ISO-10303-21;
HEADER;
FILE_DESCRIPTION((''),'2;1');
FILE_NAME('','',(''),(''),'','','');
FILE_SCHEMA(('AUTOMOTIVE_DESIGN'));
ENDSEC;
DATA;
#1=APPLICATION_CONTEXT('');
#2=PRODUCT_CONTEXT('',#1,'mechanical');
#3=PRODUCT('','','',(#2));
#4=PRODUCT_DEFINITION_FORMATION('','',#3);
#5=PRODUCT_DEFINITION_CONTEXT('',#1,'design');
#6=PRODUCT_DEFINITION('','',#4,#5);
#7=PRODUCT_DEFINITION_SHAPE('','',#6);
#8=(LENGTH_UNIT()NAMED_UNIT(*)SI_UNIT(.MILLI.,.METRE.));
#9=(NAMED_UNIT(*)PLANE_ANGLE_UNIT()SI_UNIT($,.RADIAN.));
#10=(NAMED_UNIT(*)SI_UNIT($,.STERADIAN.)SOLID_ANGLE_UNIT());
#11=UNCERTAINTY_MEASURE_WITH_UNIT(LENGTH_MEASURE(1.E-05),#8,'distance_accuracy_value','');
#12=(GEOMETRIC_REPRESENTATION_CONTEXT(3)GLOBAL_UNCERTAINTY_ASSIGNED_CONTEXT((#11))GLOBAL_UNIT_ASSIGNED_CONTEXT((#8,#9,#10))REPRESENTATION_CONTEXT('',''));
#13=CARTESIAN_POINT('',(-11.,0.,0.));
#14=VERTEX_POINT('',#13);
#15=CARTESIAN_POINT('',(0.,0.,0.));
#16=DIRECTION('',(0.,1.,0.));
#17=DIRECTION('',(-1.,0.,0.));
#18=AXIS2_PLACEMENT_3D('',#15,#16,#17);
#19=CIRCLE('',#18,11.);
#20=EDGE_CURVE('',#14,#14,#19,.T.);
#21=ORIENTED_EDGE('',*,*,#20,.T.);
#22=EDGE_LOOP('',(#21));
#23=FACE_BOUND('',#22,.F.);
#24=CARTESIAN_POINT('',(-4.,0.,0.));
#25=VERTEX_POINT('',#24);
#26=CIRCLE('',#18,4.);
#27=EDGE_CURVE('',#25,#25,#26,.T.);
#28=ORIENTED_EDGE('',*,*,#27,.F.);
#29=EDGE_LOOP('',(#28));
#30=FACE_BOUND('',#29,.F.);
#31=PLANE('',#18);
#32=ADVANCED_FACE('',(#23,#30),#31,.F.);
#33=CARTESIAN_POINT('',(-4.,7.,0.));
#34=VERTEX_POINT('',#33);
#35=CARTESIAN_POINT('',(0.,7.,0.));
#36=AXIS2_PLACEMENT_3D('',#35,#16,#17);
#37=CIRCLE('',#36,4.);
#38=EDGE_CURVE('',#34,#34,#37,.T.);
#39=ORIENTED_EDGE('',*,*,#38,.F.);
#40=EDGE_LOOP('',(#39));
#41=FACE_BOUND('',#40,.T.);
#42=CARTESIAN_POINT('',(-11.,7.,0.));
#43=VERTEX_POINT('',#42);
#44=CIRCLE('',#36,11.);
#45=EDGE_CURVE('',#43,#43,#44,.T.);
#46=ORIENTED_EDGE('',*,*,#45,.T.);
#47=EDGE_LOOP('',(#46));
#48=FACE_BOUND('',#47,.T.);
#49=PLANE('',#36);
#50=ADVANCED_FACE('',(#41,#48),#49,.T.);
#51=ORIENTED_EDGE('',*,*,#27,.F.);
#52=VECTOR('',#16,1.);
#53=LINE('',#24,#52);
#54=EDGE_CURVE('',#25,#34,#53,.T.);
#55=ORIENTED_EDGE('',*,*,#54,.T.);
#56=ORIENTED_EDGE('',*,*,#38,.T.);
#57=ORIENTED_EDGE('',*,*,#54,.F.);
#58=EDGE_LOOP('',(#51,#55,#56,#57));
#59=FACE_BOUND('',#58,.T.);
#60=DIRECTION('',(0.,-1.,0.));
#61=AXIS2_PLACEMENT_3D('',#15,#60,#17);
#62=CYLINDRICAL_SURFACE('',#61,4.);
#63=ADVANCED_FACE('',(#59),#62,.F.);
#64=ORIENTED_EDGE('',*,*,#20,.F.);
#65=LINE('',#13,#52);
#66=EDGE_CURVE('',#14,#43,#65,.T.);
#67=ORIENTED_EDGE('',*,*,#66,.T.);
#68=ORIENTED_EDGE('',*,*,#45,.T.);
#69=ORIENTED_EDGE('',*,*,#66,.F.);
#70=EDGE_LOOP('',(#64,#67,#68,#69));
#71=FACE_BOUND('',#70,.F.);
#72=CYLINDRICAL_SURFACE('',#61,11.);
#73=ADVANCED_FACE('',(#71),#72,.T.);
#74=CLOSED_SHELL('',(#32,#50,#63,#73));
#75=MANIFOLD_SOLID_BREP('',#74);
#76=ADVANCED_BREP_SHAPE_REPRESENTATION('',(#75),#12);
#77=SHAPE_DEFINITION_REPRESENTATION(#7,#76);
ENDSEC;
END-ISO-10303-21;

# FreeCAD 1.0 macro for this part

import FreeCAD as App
import Part
import Sketcher

V = App.Vector
Q = App.Units.Quantity

doc = App.newDocument("Part")
body = doc.addObject("PartDesign::Body", "Body")

sketch1 = body.newObject("Sketcher::SketchObject", "Sketch")
sketch1.AttachmentSupport = (doc.getObject("XZ_Plane"), [""])
sketch1.MapMode = "FlatFace"
sketch1.addGeometry(Part.Circle(V(0, 0, 0), V(0, 0, 1), 11), False)
sketch1.addGeometry(Part.Circle(V(0, 0, 0), V(0, 0, 1), 4), False)
sketch1.addConstraint(Sketcher.Constraint("Coincident", 0, 3, -1, 1))
sketch1.addConstraint(Sketcher.Constraint("Coincident", 1, 3, -1, 1))
sketch1.addConstraint(Sketcher.Constraint("Diameter", 0, Q("22 mm")))
sketch1.addConstraint(Sketcher.Constraint("Diameter", 1, Q("8 mm")))
pad1 = body.newObject("PartDesign::Pad", "Pad")
pad1.Profile = sketch1
pad1.Length = 7
pad1.Reversed = True

doc.recompute()
